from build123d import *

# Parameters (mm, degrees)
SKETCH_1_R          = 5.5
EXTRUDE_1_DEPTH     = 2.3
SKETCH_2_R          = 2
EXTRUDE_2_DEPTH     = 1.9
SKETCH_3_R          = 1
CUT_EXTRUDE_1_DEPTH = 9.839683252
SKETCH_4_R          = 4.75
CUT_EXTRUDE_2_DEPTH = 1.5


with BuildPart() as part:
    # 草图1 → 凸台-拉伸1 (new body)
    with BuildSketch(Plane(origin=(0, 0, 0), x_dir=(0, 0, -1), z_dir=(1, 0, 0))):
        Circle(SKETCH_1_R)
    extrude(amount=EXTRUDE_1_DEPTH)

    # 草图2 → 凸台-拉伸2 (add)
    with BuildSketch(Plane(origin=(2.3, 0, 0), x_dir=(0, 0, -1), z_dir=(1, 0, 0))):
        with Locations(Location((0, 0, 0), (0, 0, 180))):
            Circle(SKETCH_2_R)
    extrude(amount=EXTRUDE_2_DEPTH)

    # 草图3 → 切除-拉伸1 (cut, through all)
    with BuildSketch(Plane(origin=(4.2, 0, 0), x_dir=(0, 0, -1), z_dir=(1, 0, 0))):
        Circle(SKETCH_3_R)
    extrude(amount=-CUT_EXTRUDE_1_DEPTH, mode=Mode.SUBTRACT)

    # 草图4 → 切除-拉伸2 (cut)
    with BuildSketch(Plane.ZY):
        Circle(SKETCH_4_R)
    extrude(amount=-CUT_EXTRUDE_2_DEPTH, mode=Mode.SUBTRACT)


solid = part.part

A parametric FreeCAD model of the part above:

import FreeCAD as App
import Part
import Sketcher
from FreeCAD import Vector
Q = App.Units.Quantity

doc = App.newDocument("Part")
body = doc.addObject("PartDesign::Body", "Body")

# Sketch on YZ plane
sketch1 = doc.addObject("Sketcher::SketchObject", "Sketch")
body.addObject(sketch1)
sketch1.AttachmentSupport = (doc.YZ_Plane, [""])
sketch1.MapMode = "FlatFace"
sketch1.addGeometry(Part.Circle(Vector(0, 0, 0), Vector(0, 0, 1), 5.5), False)
sketch1.addConstraint(Sketcher.Constraint("Coincident", 0, 3, -1, 1))
sketch1.addConstraint(Sketcher.Constraint("Diameter", 0, Q("11 mm")))
pad1 = doc.addObject("PartDesign::Pad", "Pad")
body.addObject(pad1)
pad1.Profile = sketch1
pad1.Length = 2.3

# Sketch on YZ plane
sketch2 = doc.addObject("Sketcher::SketchObject", "Sketch001")
body.addObject(sketch2)
sketch2.AttachmentSupport = (doc.YZ_Plane, [""])
sketch2.MapMode = "FlatFace"
sketch2.AttachmentOffset = App.Placement(Vector(0, 0, 2.3), App.Rotation())
sketch2.addGeometry(Part.Circle(Vector(0, 0, 0), Vector(0, 0, 1), 2), False)
sketch2.addConstraint(Sketcher.Constraint("Coincident", 0, 3, -1, 1))
sketch2.addConstraint(Sketcher.Constraint("Diameter", 0, Q("4 mm")))
pad2 = doc.addObject("PartDesign::Pad", "Pad001")
body.addObject(pad2)
pad2.Profile = sketch2
pad2.Length = 1.9

# Sketch on YZ plane
sketch3 = doc.addObject("Sketcher::SketchObject", "Sketch002")
body.addObject(sketch3)
sketch3.AttachmentSupport = (doc.YZ_Plane, [""])
sketch3.MapMode = "FlatFace"
sketch3.AttachmentOffset = App.Placement(Vector(0, 0, 4.2), App.Rotation())
sketch3.addGeometry(Part.Circle(Vector(0, 0, 0), Vector(0, 0, 1), 1), False)
sketch3.addConstraint(Sketcher.Constraint("Coincident", 0, 3, -1, 1))
sketch3.addConstraint(Sketcher.Constraint("Diameter", 0, Q("2 mm")))
pocket1 = doc.addObject("PartDesign::Pocket", "Pocket")
body.addObject(pocket1)
pocket1.Profile = sketch3
pocket1.Type = "ThroughAll"

# Sketch on YZ plane
sketch4 = doc.addObject("Sketcher::SketchObject", "Sketch003")
body.addObject(sketch4)
sketch4.AttachmentSupport = (doc.YZ_Plane, [""])
sketch4.MapMode = "FlatFace"
sketch4.addGeometry(Part.Circle(Vector(0, 0, 0), Vector(0, 0, 1), 4.75), False)
sketch4.addConstraint(Sketcher.Constraint("Coincident", 0, 3, -1, 1))
sketch4.addConstraint(Sketcher.Constraint("Diameter", 0, Q("9.5 mm")))
pocket2 = doc.addObject("PartDesign::Pocket", "Pocket001")
body.addObject(pocket2)
pocket2.Profile = sketch4
pocket2.Length = 1.5
pocket2.Reversed = True

doc.recompute()
